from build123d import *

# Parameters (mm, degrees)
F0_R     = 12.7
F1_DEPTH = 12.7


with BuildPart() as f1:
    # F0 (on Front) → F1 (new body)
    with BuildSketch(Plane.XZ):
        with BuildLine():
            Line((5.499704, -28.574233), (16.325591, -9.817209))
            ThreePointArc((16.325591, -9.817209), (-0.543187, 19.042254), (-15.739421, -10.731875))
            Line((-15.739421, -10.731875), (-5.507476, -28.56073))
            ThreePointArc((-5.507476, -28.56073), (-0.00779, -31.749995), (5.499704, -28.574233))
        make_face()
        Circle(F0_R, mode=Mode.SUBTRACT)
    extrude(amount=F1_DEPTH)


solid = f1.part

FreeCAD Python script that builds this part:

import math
import FreeCAD as App
import Part
import Sketcher
Q = App.Units.Quantity

doc = App.newDocument("Part")
params = doc.addObject("Spreadsheet::Sheet", "Params")
for row, (alias, value) in enumerate([
    ("sketch1_diameter", "1 in"),
    ("sketch1_radius", "0.75 in"),
    ("sketch1_radius2", "0.25 in"),
    ("pad1_length", "0.5 in"),
], start=1):
    params.set(f"A{row}", alias)
    params.set(f"B{row}", "=" + value)
    params.setAlias(f"B{row}", alias)

body = doc.addObject("PartDesign::Body", "Body")

# Sketch on XZ plane
sketch1 = body.newObject("Sketcher::SketchObject", "Sketch")
sketch1.AttachmentSupport = (doc.getObject("XZ_Plane"), [""])
sketch1.MapMode = "FlatFace"
sketch1.addGeometry([
    Part.LineSegment(App.Vector(5, -29, 0), App.Vector(16, -10, 0)),  # 0
    Part.ArcOfCircle(Part.Circle(App.Vector(0, 0, 0), App.Vector(0, 0, 1), 19), math.radians(-31), math.radians(214)),  # 1
    Part.LineSegment(App.Vector(-16, -11, 0), App.Vector(-6, -29, 0)),  # 2
    Part.ArcOfCircle(Part.Circle(App.Vector(0, -25, 0), App.Vector(0, 0, 1), 6), math.radians(-150), math.radians(-30)),  # 3
    Part.Circle(App.Vector(0, 0, 0), App.Vector(0, 0, 1), 13),  # 4
], False)
sketch1.addConstraint([
    Sketcher.Constraint("Coincident", 0, 2, 1, 1),
    Sketcher.Constraint("Coincident", 1, 2, 2, 1),
    Sketcher.Constraint("Tangent", 2, 2, 3, 1),
    Sketcher.Constraint("Tangent", 3, 2, 0, 1),
    Sketcher.Constraint("Coincident", 1, 3, -1, 1),
    Sketcher.Constraint("Coincident", 4, 3, -1, 1),
    Sketcher.Constraint("PointOnObject", 3, 3, -2),
    Sketcher.Constraint("Diameter", 4, Q("1 in")),
    Sketcher.Constraint("Radius", 1, Q("0.75 in")),
    Sketcher.Constraint("Radius", 3, Q("0.25 in")),
    Sketcher.Constraint("DistanceY", 3, 3, -1, 1, Q("1 in")),
    Sketcher.Constraint("DistanceX", -1, 1, 0, 2, Q("16.325591 mm")),
    Sketcher.Constraint("DistanceX", 1, 2, -1, 1, Q("15.739421 mm")),
])
sketch1.setExpression("Constraints[7]", "Params.sketch1_diameter")
sketch1.setExpression("Constraints[8]", "Params.sketch1_radius")
sketch1.setExpression("Constraints[9]", "Params.sketch1_radius2")
pad1 = body.newObject("PartDesign::Pad", "Pad")
pad1.Profile = sketch1
pad1.setExpression("Length", "Params.pad1_length")

doc.recompute()
